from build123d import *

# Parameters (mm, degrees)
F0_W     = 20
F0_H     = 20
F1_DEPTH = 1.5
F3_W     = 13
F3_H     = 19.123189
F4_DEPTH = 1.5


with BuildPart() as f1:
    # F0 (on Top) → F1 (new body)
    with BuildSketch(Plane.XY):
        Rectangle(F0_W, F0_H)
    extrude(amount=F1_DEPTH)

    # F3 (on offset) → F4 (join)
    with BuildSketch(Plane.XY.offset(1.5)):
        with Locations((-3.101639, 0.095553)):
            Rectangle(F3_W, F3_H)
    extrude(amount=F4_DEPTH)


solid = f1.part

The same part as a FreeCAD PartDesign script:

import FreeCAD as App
import Part
import Sketcher

V = App.Vector


def add_polygon(sketch, points):
    """Adds a closed chain of lines whose ends are joined by coincident constraints."""
    first, n = sketch.GeometryCount, len(points)
    for a, b in zip(points, points[1:] + points[:1]):
        sketch.addGeometry(Part.LineSegment(App.Vector(*a, 0), App.Vector(*b, 0)), False)
    for i in range(n):
        sketch.addConstraint(Sketcher.Constraint("Coincident", first + i, 2, first + (i + 1) % n, 1))

doc = App.newDocument("Part")
body = doc.addObject("PartDesign::Body", "Body")

# Sketch on XY plane
sketch1 = doc.addObject("Sketcher::SketchObject", "Sketch")
body.addObject(sketch1)
sketch1.AttachmentSupport = (doc.XY_Plane, [""])
sketch1.MapMode = "FlatFace"
add_polygon(sketch1, [(-10, 10), (-10, -10), (10, -10), (10, 10)])  # lines 0-3
sketch1.addConstraint(Sketcher.Constraint("Vertical", 0))
sketch1.addConstraint(Sketcher.Constraint("Horizontal", 1))
sketch1.addConstraint(Sketcher.Constraint("Vertical", 2))
sketch1.addConstraint(Sketcher.Constraint("Horizontal", 3))
sketch1.addConstraint(Sketcher.Constraint("Symmetric", 0, 2, 2, 2, -1, 1))
sketch1.addConstraint(Sketcher.Constraint("Equal", 3, 0))
sketch1.addConstraint(Sketcher.Constraint("DistanceX", 1, 1, 1, 2, 20.0))
pad1 = doc.addObject("PartDesign::Pad", "Pad")
body.addObject(pad1)
pad1.Profile = sketch1
pad1.Length = 1.5

# Sketch on XY plane
sketch2 = doc.addObject("Sketcher::SketchObject", "Sketch001")
body.addObject(sketch2)
sketch2.AttachmentSupport = (doc.XY_Plane, [""])
sketch2.MapMode = "FlatFace"
sketch2.AttachmentOffset = App.Placement(V(0, 0, 1.5), App.Rotation())
add_polygon(sketch2, [(-9.601639, 9.657148), (-9.601639, -9.466041), (3.398361, -9.466041), (3.398361, 9.657148)])  # lines 0-3
sketch2.addConstraint(Sketcher.Constraint("Vertical", 0))
sketch2.addConstraint(Sketcher.Constraint("Horizontal", 1))
sketch2.addConstraint(Sketcher.Constraint("Vertical", 2))
sketch2.addConstraint(Sketcher.Constraint("Horizontal", 3))
sketch2.addConstraint(Sketcher.Constraint("DistanceX", 1, 1, 1, 2, 13.0))
sketch2.addConstraint(Sketcher.Constraint("DistanceY", 0, 2, 0, 1, 19.123189))
sketch2.addConstraint(Sketcher.Constraint("DistanceX", 0, 2, -1, 1, 9.601639))
sketch2.addConstraint(Sketcher.Constraint("DistanceY", 0, 2, -1, 1, 9.466041))
pad2 = doc.addObject("PartDesign::Pad", "Pad001")
body.addObject(pad2)
pad2.Profile = sketch2
pad2.Length = 1.5

doc.recompute()
